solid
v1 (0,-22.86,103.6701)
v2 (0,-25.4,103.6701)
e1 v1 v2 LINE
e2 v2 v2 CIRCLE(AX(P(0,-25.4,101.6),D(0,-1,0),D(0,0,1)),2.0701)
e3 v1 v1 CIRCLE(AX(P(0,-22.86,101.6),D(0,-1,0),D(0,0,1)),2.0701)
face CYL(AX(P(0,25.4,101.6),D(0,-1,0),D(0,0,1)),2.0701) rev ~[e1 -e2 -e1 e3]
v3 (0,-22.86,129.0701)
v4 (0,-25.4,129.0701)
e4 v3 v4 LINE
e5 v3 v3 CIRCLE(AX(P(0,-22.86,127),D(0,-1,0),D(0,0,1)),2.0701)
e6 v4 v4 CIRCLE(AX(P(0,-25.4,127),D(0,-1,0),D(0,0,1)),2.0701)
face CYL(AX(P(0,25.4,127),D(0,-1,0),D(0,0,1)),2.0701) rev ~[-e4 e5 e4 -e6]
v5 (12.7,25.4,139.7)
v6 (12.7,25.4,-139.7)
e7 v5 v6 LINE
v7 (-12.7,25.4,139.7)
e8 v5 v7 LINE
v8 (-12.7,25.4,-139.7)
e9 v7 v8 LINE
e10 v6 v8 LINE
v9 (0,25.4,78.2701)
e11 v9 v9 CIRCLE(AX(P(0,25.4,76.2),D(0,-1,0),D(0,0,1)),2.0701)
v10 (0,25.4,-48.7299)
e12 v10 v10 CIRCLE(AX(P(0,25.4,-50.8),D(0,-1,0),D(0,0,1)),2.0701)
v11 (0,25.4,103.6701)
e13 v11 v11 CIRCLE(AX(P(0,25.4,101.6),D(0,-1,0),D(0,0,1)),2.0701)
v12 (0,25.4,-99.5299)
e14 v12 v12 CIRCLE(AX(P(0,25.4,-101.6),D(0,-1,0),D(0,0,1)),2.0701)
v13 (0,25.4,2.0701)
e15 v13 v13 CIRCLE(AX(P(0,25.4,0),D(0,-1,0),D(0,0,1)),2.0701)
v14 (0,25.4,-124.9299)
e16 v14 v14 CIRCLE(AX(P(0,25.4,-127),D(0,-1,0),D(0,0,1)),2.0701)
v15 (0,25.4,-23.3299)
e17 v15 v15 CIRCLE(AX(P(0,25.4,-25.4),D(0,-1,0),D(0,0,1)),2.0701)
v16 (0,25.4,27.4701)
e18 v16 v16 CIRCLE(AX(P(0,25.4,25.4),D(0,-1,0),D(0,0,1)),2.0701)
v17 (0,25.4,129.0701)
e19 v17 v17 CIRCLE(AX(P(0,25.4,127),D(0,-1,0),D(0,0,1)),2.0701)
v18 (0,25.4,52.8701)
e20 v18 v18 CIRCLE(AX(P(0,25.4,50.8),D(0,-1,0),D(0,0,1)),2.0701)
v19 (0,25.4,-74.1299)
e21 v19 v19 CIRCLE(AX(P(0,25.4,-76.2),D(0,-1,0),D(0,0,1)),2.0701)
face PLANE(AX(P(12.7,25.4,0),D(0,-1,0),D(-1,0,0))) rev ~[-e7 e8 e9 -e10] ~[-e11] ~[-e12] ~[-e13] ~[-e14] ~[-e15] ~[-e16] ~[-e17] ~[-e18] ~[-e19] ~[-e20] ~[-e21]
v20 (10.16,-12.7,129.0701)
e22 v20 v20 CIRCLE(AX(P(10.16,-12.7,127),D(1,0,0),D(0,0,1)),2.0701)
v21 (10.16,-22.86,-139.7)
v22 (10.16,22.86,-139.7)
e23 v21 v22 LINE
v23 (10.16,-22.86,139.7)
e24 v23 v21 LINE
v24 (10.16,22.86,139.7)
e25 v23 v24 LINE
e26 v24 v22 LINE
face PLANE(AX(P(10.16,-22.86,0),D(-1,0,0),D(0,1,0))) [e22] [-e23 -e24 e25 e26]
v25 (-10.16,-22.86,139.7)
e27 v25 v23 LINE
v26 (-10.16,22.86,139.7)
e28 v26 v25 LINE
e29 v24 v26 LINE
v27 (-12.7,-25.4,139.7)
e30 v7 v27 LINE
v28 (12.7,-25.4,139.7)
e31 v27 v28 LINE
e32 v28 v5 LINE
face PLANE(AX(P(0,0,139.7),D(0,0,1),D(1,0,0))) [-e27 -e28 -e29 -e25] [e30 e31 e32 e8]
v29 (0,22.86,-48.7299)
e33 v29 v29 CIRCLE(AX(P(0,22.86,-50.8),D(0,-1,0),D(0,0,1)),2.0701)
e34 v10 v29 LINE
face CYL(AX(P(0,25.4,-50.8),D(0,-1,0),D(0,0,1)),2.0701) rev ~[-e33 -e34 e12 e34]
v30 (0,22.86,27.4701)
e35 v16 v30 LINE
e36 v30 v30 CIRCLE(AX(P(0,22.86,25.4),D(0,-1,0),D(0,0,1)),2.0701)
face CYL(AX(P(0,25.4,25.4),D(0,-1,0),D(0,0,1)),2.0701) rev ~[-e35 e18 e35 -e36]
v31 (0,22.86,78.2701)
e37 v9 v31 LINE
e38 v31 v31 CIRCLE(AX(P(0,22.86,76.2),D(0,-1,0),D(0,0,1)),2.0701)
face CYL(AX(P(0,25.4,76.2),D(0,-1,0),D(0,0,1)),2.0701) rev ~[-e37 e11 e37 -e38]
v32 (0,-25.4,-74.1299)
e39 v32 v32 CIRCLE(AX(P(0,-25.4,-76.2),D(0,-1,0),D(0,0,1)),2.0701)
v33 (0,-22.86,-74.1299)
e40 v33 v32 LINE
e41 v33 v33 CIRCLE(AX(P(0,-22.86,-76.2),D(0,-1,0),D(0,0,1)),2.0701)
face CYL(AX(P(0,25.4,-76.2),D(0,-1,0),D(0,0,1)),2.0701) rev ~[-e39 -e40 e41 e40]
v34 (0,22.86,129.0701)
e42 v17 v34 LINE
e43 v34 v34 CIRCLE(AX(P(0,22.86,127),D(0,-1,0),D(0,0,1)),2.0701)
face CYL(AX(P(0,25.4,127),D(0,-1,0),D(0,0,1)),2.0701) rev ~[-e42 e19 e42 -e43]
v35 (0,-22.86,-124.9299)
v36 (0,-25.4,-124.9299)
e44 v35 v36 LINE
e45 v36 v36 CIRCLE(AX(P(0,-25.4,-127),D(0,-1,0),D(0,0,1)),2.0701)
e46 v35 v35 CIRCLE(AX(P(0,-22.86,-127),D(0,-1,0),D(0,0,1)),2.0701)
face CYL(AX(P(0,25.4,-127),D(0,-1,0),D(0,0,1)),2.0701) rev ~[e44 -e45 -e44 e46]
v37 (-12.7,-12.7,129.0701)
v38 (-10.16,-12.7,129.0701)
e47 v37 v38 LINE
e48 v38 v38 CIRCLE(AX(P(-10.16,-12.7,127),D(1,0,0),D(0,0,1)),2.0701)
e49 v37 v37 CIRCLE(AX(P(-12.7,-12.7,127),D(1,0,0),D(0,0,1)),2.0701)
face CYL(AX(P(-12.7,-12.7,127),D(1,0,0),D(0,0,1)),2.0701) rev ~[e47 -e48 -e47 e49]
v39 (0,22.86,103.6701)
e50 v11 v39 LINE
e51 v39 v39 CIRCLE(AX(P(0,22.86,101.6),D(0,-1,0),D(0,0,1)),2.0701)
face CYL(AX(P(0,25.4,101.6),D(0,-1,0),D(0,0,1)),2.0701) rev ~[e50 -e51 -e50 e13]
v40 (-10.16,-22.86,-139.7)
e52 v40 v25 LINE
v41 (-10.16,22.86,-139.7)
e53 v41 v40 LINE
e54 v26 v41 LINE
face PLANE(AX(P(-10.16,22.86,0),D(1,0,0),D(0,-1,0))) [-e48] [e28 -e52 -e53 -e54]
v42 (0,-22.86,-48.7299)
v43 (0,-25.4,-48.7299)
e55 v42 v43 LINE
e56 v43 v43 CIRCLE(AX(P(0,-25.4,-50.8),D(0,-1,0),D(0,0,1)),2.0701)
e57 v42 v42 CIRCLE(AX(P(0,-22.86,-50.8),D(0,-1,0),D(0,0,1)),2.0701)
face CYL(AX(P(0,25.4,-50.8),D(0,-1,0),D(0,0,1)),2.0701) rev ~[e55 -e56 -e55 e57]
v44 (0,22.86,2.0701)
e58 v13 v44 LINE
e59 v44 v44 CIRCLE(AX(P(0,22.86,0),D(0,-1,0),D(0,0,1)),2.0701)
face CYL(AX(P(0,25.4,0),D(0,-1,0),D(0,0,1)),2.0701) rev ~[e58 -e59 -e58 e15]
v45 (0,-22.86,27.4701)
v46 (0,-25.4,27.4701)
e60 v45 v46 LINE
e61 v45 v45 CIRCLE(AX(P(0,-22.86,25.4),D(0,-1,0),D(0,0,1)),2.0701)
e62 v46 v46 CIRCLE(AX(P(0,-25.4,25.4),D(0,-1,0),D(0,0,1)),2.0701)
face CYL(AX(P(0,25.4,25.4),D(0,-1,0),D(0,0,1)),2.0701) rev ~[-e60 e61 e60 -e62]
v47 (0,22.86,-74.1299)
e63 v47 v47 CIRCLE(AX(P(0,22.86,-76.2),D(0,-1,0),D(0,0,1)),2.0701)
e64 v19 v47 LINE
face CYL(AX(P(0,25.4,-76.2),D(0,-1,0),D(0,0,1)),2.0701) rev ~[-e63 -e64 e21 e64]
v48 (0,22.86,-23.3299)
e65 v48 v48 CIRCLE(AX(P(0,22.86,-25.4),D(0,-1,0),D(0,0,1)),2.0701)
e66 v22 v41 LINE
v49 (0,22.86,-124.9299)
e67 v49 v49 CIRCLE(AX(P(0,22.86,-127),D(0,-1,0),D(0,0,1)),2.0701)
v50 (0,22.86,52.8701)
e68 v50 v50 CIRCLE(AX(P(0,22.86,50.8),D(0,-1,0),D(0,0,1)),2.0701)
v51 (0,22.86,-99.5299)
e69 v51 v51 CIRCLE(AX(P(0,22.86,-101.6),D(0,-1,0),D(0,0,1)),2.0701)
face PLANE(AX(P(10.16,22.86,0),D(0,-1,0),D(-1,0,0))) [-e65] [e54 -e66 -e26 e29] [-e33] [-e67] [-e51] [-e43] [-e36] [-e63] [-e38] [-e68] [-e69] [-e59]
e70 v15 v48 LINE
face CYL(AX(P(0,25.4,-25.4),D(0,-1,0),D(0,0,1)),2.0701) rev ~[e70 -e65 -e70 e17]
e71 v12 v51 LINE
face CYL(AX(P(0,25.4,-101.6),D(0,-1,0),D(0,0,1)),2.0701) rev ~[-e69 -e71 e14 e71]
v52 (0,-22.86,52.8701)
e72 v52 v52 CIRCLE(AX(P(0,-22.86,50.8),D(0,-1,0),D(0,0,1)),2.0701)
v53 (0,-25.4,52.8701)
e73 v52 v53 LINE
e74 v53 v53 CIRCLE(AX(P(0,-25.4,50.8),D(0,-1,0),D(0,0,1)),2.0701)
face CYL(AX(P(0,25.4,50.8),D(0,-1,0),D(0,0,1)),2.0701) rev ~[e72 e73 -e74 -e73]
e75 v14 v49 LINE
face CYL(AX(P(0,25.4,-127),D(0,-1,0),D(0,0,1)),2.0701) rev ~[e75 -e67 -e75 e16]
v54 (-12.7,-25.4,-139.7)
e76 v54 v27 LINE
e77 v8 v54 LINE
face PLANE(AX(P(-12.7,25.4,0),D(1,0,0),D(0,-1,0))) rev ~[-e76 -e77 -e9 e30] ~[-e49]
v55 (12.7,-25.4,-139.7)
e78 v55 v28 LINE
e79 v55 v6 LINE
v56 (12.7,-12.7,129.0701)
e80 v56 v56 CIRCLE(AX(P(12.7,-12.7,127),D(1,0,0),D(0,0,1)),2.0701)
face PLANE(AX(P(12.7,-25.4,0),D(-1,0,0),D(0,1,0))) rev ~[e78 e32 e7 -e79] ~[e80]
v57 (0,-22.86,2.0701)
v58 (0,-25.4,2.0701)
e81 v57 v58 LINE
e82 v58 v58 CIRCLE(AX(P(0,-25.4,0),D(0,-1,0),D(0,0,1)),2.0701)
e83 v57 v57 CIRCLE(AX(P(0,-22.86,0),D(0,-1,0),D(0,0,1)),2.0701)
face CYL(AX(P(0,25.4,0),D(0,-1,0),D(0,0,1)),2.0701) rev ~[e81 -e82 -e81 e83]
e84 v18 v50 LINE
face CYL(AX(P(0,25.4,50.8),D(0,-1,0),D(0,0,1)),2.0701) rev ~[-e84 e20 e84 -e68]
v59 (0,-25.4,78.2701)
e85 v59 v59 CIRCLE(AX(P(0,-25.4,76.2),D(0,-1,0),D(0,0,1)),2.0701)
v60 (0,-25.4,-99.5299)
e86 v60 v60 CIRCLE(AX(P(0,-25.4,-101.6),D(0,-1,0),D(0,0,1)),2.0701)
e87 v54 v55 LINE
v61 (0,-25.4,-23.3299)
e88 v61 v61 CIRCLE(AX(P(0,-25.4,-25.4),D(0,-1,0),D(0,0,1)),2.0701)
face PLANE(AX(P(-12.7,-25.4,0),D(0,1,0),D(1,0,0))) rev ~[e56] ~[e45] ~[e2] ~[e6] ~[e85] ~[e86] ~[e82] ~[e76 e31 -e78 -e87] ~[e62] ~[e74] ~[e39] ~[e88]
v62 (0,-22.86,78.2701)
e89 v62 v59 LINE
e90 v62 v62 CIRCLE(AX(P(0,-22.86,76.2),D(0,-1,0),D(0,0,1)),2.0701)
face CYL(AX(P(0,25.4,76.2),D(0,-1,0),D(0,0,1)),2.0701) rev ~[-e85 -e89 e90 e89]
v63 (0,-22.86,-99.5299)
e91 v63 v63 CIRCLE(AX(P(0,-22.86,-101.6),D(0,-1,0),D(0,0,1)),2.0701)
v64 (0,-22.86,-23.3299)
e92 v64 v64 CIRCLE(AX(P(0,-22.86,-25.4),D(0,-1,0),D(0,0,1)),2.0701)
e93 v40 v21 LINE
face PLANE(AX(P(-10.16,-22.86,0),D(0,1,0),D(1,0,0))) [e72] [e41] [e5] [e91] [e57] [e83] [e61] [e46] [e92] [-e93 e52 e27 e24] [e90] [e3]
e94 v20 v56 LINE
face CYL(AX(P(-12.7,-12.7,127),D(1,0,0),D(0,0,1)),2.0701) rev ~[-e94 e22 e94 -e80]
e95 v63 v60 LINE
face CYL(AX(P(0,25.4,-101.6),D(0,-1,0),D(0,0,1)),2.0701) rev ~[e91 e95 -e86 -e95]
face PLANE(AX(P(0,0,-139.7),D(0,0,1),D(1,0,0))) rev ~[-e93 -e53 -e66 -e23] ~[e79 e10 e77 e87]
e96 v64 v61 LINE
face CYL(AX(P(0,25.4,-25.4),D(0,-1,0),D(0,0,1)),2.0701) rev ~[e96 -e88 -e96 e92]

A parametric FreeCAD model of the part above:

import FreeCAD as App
import Part
import Sketcher
from FreeCAD import Vector
Q = App.Units.Quantity

doc = App.newDocument("Part")
body = doc.addObject("PartDesign::Body", "Body")

sketch1 = doc.addObject("Sketcher::SketchObject", "Sketch")
body.addObject(sketch1)
sketch1.AttachmentSupport = (doc.XY_Plane, [""])
sketch1.MapMode = "FlatFace"
sketch1.addGeometry(Part.LineSegment(Vector(-13, 25, 0), Vector(-13, -25, 0)), False)
sketch1.addGeometry(Part.LineSegment(Vector(-13, -25, 0), Vector(13, -25, 0)), False)
sketch1.addGeometry(Part.LineSegment(Vector(13, -25, 0), Vector(13, 25, 0)), False)
sketch1.addGeometry(Part.LineSegment(Vector(13, 25, 0), Vector(-13, 25, 0)), False)
sketch1.addGeometry(Part.LineSegment(Vector(10, -23, 0), Vector(-10, -23, 0)), False)
sketch1.addGeometry(Part.LineSegment(Vector(-10, -23, 0), Vector(-10, 23, 0)), False)
sketch1.addGeometry(Part.LineSegment(Vector(-10, 23, 0), Vector(10, 23, 0)), False)
sketch1.addGeometry(Part.LineSegment(Vector(10, 23, 0), Vector(10, -23, 0)), False)
sketch1.addConstraint(Sketcher.Constraint("Coincident", 0, 2, 1, 1))
sketch1.addConstraint(Sketcher.Constraint("Coincident", 1, 2, 2, 1))
sketch1.addConstraint(Sketcher.Constraint("Coincident", 2, 2, 3, 1))
sketch1.addConstraint(Sketcher.Constraint("Coincident", 3, 2, 0, 1))
sketch1.addConstraint(Sketcher.Constraint("Coincident", 4, 2, 5, 1))
sketch1.addConstraint(Sketcher.Constraint("Coincident", 5, 2, 6, 1))
sketch1.addConstraint(Sketcher.Constraint("Coincident", 6, 2, 7, 1))
sketch1.addConstraint(Sketcher.Constraint("Coincident", 7, 2, 4, 1))
sketch1.addConstraint(Sketcher.Constraint("Vertical", 0))
sketch1.addConstraint(Sketcher.Constraint("Horizontal", 1))
sketch1.addConstraint(Sketcher.Constraint("Vertical", 2))
sketch1.addConstraint(Sketcher.Constraint("Horizontal", 3))
sketch1.addConstraint(Sketcher.Constraint("Horizontal", 4))
sketch1.addConstraint(Sketcher.Constraint("Vertical", 5))
sketch1.addConstraint(Sketcher.Constraint("Horizontal", 6))
sketch1.addConstraint(Sketcher.Constraint("Vertical", 7))
sketch1.addConstraint(Sketcher.Constraint("Symmetric", 0, 2, 2, 2, -1, 1))
sketch1.addConstraint(Sketcher.Constraint("Symmetric", 4, 2, 6, 2, -1, 1))
sketch1.addConstraint(Sketcher.Constraint("DistanceX", 1, 1, 1, 2, Q("1 in")))
sketch1.addConstraint(Sketcher.Constraint("DistanceY", 0, 2, 0, 1, Q("2 in")))
sketch1.addConstraint(Sketcher.Constraint("DistanceX", 4, 2, 4, 1, Q("0.8 in")))
sketch1.addConstraint(Sketcher.Constraint("DistanceY", 5, 1, 5, 2, Q("1.8 in")))
pad1 = doc.addObject("PartDesign::Pad", "Pad")
body.addObject(pad1)
pad1.Profile = sketch1
pad1.Length = Q("11 in")
pad1.Midplane = True

sketch2 = doc.addObject("Sketcher::SketchObject", "Sketch001")
body.addObject(sketch2)
sketch2.AttachmentSupport = (doc.XZ_Plane, [""])
sketch2.MapMode = "FlatFace"
sketch2.AttachmentOffset = App.Placement(Vector(0, 0, -1 * 25.4), App.Rotation())
sketch2.addGeometry(Part.Circle(Vector(0, 127, 0), Vector(0, 0, 1), 2.1), False)
sketch2.addConstraint(Sketcher.Constraint("PointOnObject", 0, 3, -2))
sketch2.addConstraint(Sketcher.Constraint("Diameter", 0, Q("0.163 in")))
sketch2.addConstraint(Sketcher.Constraint("DistanceY", -1, 1, 0, 3, Q("5 in")))
doc.recompute()
hole = doc.addObject("PartDesign::Hole", "Hole")
body.addObject(hole)
hole.Profile = sketch2
hole.ThreadType = "None"
hole.Diameter = Q("0.163 in")
hole.DepthType = "ThroughAll"
hole.Reversed = True
doc.recompute()

linearpattern = doc.addObject("PartDesign::LinearPattern", "LinearPattern")
body.addObject(linearpattern)
linearpattern.Originals = [hole]
linearpattern.Direction = (doc.Z_Axis, [""])
linearpattern.Mode = "offset"
linearpattern.Offset = Q("1 in")
linearpattern.Occurrences = 11
linearpattern.Reversed = True
body.Tip = linearpattern

sketch3 = doc.addObject("Sketcher::SketchObject", "Sketch002")
body.addObject(sketch3)
sketch3.AttachmentSupport = (doc.YZ_Plane, [""])
sketch3.MapMode = "FlatFace"
sketch3.AttachmentOffset = App.Placement(Vector(0, 0, -0.5 * 25.4), App.Rotation())
sketch3.addGeometry(Part.Circle(Vector(-12.7, 127, 0), Vector(0, 0, 1), 2.1), False)
sketch3.addConstraint(Sketcher.Constraint("Diameter", 0, Q("0.163 in")))
sketch3.addConstraint(Sketcher.Constraint("DistanceY", -1, 1, 0, 3, Q("5 in")))
sketch3.addConstraint(Sketcher.Constraint("DistanceX", 0, 3, -1, 1, Q("0.5 in")))
doc.recompute()
hole2 = doc.addObject("PartDesign::Hole", "Hole001")
body.addObject(hole2)
hole2.Profile = sketch3
hole2.ThreadType = "None"
hole2.Diameter = Q("0.163 in")
hole2.DepthType = "ThroughAll"
hole2.Reversed = True

doc.recompute()
